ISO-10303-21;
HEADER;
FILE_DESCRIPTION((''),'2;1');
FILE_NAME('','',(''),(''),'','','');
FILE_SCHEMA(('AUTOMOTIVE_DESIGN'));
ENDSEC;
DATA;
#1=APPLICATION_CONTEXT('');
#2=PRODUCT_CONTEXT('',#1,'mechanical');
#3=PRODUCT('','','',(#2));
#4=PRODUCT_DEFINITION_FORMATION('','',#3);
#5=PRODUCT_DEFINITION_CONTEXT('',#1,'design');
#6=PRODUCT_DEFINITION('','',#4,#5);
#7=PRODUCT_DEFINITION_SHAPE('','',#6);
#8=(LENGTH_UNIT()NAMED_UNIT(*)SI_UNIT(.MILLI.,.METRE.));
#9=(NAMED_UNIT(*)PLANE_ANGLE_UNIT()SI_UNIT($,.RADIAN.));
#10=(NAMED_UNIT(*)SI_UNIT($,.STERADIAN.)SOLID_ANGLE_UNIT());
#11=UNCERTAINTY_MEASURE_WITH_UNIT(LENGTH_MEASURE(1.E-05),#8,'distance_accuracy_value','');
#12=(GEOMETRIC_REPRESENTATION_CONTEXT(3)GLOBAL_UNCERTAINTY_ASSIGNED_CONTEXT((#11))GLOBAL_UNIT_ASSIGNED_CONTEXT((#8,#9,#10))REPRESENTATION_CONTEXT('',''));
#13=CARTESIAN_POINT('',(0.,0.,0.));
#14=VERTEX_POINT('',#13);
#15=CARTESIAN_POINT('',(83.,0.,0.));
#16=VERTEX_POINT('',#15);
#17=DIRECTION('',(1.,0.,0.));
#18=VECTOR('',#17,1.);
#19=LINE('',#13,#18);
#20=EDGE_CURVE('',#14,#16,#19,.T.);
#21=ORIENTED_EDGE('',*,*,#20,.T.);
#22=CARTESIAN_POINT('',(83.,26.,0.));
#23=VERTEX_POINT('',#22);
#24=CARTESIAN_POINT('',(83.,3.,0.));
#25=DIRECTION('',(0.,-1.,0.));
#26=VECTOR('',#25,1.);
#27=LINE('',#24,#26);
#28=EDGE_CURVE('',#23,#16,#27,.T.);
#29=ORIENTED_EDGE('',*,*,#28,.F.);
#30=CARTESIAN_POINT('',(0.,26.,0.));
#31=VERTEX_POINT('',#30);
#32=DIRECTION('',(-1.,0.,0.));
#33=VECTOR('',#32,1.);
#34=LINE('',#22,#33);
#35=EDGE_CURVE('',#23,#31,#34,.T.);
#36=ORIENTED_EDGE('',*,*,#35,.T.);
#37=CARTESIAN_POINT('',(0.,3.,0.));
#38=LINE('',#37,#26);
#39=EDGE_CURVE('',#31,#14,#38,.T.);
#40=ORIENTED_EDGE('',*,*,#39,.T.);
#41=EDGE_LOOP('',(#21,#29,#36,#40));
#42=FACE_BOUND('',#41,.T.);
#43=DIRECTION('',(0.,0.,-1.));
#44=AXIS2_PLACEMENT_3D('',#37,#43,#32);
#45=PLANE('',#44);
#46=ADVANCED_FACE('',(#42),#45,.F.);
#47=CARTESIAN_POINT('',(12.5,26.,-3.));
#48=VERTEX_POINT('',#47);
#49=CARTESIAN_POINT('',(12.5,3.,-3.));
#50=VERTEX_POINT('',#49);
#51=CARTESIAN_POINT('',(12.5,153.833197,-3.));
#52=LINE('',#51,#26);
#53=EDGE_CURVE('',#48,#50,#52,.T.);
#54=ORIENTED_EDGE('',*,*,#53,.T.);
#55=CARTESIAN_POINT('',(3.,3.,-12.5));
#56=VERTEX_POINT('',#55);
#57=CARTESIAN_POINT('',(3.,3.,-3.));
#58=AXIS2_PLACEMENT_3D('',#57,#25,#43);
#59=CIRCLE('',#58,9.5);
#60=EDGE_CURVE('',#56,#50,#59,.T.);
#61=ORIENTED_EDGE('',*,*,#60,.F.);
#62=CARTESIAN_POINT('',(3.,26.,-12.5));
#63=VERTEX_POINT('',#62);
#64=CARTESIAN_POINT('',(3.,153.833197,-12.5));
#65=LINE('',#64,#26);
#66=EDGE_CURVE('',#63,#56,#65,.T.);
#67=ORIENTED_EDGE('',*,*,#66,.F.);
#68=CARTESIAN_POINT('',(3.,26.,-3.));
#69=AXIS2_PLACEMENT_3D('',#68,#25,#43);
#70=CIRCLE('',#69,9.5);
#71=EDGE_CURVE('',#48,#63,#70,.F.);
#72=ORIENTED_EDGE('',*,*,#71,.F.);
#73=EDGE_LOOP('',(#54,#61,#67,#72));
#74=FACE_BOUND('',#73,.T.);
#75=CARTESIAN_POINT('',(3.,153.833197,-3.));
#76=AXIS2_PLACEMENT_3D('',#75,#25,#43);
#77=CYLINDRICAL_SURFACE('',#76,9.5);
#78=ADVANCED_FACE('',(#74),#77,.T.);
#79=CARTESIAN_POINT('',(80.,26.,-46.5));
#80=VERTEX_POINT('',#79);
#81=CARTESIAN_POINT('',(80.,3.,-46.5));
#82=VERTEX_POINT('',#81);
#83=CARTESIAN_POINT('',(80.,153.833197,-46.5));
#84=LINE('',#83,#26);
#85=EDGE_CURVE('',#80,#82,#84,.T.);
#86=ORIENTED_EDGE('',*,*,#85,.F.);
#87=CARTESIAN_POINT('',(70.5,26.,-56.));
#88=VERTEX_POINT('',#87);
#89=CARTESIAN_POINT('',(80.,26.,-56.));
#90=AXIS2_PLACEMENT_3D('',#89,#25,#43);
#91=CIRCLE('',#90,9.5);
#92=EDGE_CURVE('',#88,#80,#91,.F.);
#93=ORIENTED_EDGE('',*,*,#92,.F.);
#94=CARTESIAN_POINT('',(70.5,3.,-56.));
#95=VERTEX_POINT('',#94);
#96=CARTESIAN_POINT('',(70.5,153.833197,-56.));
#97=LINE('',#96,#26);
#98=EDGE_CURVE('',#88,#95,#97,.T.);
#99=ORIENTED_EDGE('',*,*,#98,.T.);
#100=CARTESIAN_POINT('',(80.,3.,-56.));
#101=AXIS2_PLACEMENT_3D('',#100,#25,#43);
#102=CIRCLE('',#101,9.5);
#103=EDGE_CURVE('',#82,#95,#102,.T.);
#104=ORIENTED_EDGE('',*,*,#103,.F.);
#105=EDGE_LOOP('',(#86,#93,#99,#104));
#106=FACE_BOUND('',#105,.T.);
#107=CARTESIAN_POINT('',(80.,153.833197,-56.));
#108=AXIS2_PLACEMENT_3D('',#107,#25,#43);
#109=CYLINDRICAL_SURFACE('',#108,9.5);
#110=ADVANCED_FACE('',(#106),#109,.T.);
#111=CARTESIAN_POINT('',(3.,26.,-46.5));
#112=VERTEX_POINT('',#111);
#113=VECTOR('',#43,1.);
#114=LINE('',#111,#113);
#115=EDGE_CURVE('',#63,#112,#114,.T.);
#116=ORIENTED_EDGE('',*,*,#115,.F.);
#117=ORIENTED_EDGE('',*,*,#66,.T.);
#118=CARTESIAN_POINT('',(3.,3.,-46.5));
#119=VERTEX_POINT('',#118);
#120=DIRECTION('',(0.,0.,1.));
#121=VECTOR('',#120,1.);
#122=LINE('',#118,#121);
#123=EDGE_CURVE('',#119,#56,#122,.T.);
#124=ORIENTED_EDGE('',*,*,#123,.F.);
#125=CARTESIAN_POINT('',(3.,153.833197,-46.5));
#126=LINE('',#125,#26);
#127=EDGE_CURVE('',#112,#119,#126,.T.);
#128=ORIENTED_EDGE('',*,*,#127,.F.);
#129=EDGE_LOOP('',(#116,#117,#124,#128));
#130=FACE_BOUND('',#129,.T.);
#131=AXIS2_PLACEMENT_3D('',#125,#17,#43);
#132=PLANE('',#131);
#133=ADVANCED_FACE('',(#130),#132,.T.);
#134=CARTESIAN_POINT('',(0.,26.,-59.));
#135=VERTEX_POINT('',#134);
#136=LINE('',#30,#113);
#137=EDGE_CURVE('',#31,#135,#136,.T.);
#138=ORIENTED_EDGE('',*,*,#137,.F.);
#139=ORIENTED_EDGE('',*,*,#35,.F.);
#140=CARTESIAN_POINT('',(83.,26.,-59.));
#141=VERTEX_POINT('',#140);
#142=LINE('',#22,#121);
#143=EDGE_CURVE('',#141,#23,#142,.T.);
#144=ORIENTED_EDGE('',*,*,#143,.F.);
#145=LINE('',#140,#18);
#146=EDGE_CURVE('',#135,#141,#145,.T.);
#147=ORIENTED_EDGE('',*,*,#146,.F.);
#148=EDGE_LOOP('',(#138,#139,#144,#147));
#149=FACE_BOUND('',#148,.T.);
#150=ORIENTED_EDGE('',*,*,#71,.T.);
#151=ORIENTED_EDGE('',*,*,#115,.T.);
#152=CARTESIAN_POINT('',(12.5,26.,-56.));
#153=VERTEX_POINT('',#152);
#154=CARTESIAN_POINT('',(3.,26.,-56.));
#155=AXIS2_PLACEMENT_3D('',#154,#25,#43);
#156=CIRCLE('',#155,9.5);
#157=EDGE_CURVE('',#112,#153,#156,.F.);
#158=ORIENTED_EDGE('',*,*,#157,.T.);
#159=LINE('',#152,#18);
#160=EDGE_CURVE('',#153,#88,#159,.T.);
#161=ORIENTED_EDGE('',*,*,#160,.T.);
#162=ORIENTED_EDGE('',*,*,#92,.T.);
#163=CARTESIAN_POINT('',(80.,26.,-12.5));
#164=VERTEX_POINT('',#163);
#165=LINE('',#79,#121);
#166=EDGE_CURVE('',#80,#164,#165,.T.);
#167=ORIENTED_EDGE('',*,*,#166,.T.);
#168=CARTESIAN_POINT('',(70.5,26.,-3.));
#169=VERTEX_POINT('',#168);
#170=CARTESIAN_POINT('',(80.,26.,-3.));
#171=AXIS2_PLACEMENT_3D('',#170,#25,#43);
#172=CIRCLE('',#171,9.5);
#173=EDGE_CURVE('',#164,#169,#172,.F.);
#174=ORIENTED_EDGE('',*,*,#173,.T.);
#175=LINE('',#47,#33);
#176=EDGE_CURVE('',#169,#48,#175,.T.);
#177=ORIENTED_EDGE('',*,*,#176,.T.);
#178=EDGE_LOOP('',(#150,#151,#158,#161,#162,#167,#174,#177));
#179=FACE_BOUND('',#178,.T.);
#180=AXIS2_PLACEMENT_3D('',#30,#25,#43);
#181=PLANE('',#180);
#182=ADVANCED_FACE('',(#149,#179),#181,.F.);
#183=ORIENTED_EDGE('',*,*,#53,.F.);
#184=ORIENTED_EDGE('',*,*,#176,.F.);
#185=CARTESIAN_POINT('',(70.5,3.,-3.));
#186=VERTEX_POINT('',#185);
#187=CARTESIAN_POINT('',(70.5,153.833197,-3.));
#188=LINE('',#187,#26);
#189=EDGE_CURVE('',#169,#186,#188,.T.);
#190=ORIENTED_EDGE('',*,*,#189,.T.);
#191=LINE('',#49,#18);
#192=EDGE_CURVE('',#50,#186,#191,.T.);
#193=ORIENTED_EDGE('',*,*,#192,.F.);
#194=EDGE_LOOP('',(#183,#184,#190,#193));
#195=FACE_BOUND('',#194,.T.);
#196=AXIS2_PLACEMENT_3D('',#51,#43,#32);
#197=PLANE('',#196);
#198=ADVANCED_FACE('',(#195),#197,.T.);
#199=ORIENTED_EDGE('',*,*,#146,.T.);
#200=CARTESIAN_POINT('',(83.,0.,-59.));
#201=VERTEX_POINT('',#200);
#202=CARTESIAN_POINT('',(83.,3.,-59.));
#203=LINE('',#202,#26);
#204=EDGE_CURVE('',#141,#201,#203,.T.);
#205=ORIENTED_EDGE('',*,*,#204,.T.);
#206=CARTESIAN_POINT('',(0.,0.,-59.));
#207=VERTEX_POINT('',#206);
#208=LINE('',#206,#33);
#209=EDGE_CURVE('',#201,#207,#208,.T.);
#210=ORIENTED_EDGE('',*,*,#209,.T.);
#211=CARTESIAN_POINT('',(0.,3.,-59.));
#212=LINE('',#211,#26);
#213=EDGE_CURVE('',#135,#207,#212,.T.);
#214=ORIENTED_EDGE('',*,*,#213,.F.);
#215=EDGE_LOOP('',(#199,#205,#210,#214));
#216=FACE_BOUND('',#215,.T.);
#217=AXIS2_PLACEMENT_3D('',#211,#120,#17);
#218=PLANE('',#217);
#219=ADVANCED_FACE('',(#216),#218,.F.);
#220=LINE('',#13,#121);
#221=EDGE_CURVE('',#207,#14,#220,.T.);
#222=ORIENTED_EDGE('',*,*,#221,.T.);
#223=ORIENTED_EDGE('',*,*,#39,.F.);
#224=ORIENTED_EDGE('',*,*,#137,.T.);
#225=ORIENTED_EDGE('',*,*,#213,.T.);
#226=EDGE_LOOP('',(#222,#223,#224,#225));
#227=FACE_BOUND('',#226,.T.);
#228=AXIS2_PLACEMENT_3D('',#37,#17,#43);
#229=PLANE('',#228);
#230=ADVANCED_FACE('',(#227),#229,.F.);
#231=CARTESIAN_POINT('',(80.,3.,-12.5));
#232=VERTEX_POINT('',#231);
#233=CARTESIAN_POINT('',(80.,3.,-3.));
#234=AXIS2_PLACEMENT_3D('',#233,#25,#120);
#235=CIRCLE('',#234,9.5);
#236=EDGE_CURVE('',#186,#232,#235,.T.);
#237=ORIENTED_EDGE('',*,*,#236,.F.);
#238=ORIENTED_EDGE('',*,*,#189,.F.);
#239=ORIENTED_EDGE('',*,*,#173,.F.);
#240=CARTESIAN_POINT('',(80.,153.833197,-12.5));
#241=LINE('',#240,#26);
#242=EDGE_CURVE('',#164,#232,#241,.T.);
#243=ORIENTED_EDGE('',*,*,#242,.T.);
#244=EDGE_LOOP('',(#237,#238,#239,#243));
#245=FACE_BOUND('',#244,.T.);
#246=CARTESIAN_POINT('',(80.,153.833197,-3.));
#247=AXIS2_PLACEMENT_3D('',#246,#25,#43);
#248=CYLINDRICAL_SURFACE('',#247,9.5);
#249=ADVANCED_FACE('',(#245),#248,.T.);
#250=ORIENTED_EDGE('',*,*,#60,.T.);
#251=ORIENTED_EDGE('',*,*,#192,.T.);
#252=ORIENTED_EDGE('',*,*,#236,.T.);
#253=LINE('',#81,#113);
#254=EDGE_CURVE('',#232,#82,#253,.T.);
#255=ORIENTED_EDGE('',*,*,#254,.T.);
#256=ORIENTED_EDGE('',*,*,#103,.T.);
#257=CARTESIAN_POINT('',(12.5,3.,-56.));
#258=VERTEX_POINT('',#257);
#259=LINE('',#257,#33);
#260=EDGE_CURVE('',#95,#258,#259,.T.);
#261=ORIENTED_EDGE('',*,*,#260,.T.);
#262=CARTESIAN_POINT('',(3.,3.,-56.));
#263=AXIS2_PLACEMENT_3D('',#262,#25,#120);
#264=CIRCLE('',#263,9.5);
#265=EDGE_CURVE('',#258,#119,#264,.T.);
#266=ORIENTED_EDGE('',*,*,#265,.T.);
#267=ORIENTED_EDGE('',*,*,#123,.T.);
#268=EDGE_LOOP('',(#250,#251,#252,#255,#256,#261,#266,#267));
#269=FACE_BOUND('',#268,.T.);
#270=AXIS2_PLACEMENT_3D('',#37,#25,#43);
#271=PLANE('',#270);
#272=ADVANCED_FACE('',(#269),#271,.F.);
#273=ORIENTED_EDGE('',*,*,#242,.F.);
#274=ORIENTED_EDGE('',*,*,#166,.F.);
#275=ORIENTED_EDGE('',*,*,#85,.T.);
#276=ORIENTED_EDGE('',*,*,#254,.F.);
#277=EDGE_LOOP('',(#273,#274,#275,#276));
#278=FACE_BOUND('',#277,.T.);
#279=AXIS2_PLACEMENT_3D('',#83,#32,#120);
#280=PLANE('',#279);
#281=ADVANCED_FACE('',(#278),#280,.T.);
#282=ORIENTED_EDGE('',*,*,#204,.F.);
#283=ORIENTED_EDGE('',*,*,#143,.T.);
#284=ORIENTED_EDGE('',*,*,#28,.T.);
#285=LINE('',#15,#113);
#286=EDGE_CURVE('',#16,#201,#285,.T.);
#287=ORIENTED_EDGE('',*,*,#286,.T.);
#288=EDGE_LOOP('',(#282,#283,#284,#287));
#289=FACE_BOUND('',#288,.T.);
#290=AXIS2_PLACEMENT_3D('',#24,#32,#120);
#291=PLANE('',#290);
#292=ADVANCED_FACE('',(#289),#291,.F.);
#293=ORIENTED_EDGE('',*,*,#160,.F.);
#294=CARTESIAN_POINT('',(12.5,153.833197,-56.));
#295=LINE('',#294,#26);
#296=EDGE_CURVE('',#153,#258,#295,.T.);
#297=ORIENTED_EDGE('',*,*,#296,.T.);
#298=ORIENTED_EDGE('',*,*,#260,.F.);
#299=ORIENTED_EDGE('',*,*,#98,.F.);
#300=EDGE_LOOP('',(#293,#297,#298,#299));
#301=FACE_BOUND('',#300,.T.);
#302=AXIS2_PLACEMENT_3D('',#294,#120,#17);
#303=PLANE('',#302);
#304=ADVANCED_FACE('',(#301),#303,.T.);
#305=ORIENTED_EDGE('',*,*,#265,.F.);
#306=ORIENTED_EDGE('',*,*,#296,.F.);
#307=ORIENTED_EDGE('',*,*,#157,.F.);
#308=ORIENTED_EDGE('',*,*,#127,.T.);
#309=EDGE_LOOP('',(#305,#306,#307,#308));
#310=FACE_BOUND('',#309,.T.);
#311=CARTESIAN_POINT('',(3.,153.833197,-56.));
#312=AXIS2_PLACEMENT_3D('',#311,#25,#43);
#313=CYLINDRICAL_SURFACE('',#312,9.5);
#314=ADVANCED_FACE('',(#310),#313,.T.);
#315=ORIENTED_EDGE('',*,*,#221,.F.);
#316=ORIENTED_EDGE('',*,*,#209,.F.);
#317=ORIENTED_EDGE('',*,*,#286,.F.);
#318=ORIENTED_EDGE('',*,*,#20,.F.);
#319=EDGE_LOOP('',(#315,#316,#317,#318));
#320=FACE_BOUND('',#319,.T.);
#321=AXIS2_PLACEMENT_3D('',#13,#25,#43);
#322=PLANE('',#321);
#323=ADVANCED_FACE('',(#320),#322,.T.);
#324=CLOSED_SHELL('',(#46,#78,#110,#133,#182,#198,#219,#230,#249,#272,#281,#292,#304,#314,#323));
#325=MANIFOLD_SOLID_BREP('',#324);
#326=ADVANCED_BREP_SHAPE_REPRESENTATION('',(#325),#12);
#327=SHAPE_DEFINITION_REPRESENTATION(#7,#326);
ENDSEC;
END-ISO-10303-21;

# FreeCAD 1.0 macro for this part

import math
import FreeCAD as App
import Part
import Sketcher


def add_polygon(sketch, points):
    """Adds a closed chain of lines whose ends are joined by coincident constraints."""
    first, n = sketch.GeometryCount, len(points)
    for a, b in zip(points, points[1:] + points[:1]):
        sketch.addGeometry(Part.LineSegment(App.Vector(*a, 0), App.Vector(*b, 0)), False)
    for i in range(n):
        sketch.addConstraint(Sketcher.Constraint("Coincident", first + i, 2, first + (i + 1) % n, 1))

doc = App.newDocument("Part")
params = doc.addObject("Spreadsheet::Sheet", "Params")
for row, (alias, value) in enumerate([
    ("sketch1_width", "83 mm"),
    ("sketch1_height", "59 mm"),
    ("pad1_length", "3 mm"),
    ("sketch2_radius", "9.5 mm"),
    ("sketch2_width", "83 mm"),
    ("sketch2_width2", "58 mm"),
    ("sketch2_height", "59 mm"),
    ("sketch2_height2", "34 mm"),
    ("pad2_length", "23 mm"),
], start=1):
    params.set(f"A{row}", alias)
    params.set(f"B{row}", "=" + value)
    params.setAlias(f"B{row}", alias)

body = doc.addObject("PartDesign::Body", "Body")

sketch1 = doc.addObject("Sketcher::SketchObject", "Sketch")
body.addObject(sketch1)
sketch1.AttachmentSupport = (doc.XZ_Plane, [""])
sketch1.MapMode = "FlatFace"
add_polygon(sketch1, [(0, -59), (0, 0), (83, 0), (83, -59)])
sketch1.addConstraint(Sketcher.Constraint("Vertical", 0))
sketch1.addConstraint(Sketcher.Constraint("Horizontal", 1))
sketch1.addConstraint(Sketcher.Constraint("Vertical", 2))
sketch1.addConstraint(Sketcher.Constraint("Horizontal", 3))
sketch1.addConstraint(Sketcher.Constraint("Coincident", 0, 2, -1, 1))
sketch1.addConstraint(Sketcher.Constraint("DistanceX", 1, 1, 1, 2, 83.0))
sketch1.addConstraint(Sketcher.Constraint("DistanceY", 0, 1, 0, 2, 59.0))
sketch1.setExpression("Constraints[9]", "Params.sketch1_width")
sketch1.setExpression("Constraints[10]", "Params.sketch1_height")
pad1 = doc.addObject("PartDesign::Pad", "Pad")
body.addObject(pad1)
pad1.Profile = sketch1
pad1.setExpression("Length", "Params.pad1_length")
pad1.Reversed = True

sketch2 = doc.addObject("Sketcher::SketchObject", "Sketch001")
body.addObject(sketch2)
sketch2.AttachmentSupport = (doc.XZ_Plane, [""])
sketch2.MapMode = "FlatFace"
sketch2.AttachmentOffset = App.Placement(App.Vector(0, 0, -3), App.Rotation())
add_polygon(sketch2, [(0, -59), (0, 0), (83, 0), (83, -59)])
sketch2.addGeometry(Part.LineSegment(App.Vector(3, -12.5, 0), App.Vector(3, -46.5, 0)), False)
sketch2.addGeometry(Part.ArcOfCircle(Part.Circle(App.Vector(3, -56, 0), App.Vector(0, 0, 1), 9.5), math.radians(0), math.radians(90)), False)
sketch2.addGeometry(Part.LineSegment(App.Vector(12.5, -56, 0), App.Vector(70.5, -56, 0)), False)
sketch2.addGeometry(Part.ArcOfCircle(Part.Circle(App.Vector(80, -56, 0), App.Vector(0, 0, 1), 9.5), math.radians(90), math.radians(180)), False)
sketch2.addGeometry(Part.LineSegment(App.Vector(80, -46.5, 0), App.Vector(80, -12.5, 0)), False)
sketch2.addGeometry(Part.ArcOfCircle(Part.Circle(App.Vector(80, -3, 0), App.Vector(0, 0, 1), 9.5), math.radians(-180), math.radians(-90)), False)
sketch2.addGeometry(Part.LineSegment(App.Vector(70.5, -3, 0), App.Vector(12.5, -3, 0)), False)
sketch2.addGeometry(Part.ArcOfCircle(Part.Circle(App.Vector(3, -3, 0), App.Vector(0, 0, 1), 9.5), math.radians(-90), math.radians(0)), False)
sketch2.addConstraint(Sketcher.Constraint("Coincident", 4, 2, 5, 2))
sketch2.addConstraint(Sketcher.Constraint("Coincident", 5, 1, 6, 1))
sketch2.addConstraint(Sketcher.Constraint("Coincident", 6, 2, 7, 2))
sketch2.addConstraint(Sketcher.Constraint("Coincident", 7, 1, 8, 1))
sketch2.addConstraint(Sketcher.Constraint("Coincident", 8, 2, 9, 2))
sketch2.addConstraint(Sketcher.Constraint("Coincident", 9, 1, 10, 1))
sketch2.addConstraint(Sketcher.Constraint("Coincident", 10, 2, 11, 2))
sketch2.addConstraint(Sketcher.Constraint("Coincident", 11, 1, 4, 1))
sketch2.addConstraint(Sketcher.Constraint("Vertical", 0))
sketch2.addConstraint(Sketcher.Constraint("Horizontal", 1))
sketch2.addConstraint(Sketcher.Constraint("Vertical", 2))
sketch2.addConstraint(Sketcher.Constraint("Horizontal", 3))
sketch2.addConstraint(Sketcher.Constraint("Vertical", 4))
sketch2.addConstraint(Sketcher.Constraint("Horizontal", 6))
sketch2.addConstraint(Sketcher.Constraint("Vertical", 8))
sketch2.addConstraint(Sketcher.Constraint("Horizontal", 10))
sketch2.addConstraint(Sketcher.Constraint("Coincident", 0, 2, -1, 1))
sketch2.addConstraint(Sketcher.Constraint("Equal", 5, 7))
sketch2.addConstraint(Sketcher.Constraint("Equal", 7, 9))
sketch2.addConstraint(Sketcher.Constraint("Equal", 9, 11))
sketch2.addConstraint(Sketcher.Constraint("Horizontal", 5, 3, 7, 3))
sketch2.addConstraint(Sketcher.Constraint("Horizontal", 9, 3, 11, 3))
sketch2.addConstraint(Sketcher.Constraint("Horizontal", 7, 3, 5, 1))
sketch2.addConstraint(Sketcher.Constraint("Horizontal", 11, 3, 9, 1))
sketch2.addConstraint(Sketcher.Constraint("Vertical", 7, 3, 9, 3))
sketch2.addConstraint(Sketcher.Constraint("Vertical", 5, 3, 11, 3))
sketch2.addConstraint(Sketcher.Constraint("Vertical", 11, 3, 4, 2))
sketch2.addConstraint(Sketcher.Constraint("Vertical", 9, 3, 7, 1))
sketch2.addConstraint(Sketcher.Constraint("Radius", 5, 9.5))
sketch2.addConstraint(Sketcher.Constraint("DistanceX", 1, 1, 1, 2, 83.0))
sketch2.addConstraint(Sketcher.Constraint("DistanceX", 6, 1, 6, 2, 58.0))
sketch2.addConstraint(Sketcher.Constraint("DistanceY", 0, 1, 0, 2, 59.0))
sketch2.addConstraint(Sketcher.Constraint("DistanceY", 4, 2, 4, 1, 34.0))
sketch2.addConstraint(Sketcher.Constraint("DistanceX", -1, 1, 5, 3, 3.0))
sketch2.addConstraint(Sketcher.Constraint("DistanceY", 5, 3, -1, 1, 56.0))
sketch2.setExpression("Constraints[32]", "Params.sketch2_radius")
sketch2.setExpression("Constraints[33]", "Params.sketch2_width")
sketch2.setExpression("Constraints[34]", "Params.sketch2_width2")
sketch2.setExpression("Constraints[35]", "Params.sketch2_height")
sketch2.setExpression("Constraints[36]", "Params.sketch2_height2")
pad2 = doc.addObject("PartDesign::Pad", "Pad001")
body.addObject(pad2)
pad2.Profile = sketch2
pad2.setExpression("Length", "Params.pad2_length")
pad2.Reversed = True

doc.recompute()
